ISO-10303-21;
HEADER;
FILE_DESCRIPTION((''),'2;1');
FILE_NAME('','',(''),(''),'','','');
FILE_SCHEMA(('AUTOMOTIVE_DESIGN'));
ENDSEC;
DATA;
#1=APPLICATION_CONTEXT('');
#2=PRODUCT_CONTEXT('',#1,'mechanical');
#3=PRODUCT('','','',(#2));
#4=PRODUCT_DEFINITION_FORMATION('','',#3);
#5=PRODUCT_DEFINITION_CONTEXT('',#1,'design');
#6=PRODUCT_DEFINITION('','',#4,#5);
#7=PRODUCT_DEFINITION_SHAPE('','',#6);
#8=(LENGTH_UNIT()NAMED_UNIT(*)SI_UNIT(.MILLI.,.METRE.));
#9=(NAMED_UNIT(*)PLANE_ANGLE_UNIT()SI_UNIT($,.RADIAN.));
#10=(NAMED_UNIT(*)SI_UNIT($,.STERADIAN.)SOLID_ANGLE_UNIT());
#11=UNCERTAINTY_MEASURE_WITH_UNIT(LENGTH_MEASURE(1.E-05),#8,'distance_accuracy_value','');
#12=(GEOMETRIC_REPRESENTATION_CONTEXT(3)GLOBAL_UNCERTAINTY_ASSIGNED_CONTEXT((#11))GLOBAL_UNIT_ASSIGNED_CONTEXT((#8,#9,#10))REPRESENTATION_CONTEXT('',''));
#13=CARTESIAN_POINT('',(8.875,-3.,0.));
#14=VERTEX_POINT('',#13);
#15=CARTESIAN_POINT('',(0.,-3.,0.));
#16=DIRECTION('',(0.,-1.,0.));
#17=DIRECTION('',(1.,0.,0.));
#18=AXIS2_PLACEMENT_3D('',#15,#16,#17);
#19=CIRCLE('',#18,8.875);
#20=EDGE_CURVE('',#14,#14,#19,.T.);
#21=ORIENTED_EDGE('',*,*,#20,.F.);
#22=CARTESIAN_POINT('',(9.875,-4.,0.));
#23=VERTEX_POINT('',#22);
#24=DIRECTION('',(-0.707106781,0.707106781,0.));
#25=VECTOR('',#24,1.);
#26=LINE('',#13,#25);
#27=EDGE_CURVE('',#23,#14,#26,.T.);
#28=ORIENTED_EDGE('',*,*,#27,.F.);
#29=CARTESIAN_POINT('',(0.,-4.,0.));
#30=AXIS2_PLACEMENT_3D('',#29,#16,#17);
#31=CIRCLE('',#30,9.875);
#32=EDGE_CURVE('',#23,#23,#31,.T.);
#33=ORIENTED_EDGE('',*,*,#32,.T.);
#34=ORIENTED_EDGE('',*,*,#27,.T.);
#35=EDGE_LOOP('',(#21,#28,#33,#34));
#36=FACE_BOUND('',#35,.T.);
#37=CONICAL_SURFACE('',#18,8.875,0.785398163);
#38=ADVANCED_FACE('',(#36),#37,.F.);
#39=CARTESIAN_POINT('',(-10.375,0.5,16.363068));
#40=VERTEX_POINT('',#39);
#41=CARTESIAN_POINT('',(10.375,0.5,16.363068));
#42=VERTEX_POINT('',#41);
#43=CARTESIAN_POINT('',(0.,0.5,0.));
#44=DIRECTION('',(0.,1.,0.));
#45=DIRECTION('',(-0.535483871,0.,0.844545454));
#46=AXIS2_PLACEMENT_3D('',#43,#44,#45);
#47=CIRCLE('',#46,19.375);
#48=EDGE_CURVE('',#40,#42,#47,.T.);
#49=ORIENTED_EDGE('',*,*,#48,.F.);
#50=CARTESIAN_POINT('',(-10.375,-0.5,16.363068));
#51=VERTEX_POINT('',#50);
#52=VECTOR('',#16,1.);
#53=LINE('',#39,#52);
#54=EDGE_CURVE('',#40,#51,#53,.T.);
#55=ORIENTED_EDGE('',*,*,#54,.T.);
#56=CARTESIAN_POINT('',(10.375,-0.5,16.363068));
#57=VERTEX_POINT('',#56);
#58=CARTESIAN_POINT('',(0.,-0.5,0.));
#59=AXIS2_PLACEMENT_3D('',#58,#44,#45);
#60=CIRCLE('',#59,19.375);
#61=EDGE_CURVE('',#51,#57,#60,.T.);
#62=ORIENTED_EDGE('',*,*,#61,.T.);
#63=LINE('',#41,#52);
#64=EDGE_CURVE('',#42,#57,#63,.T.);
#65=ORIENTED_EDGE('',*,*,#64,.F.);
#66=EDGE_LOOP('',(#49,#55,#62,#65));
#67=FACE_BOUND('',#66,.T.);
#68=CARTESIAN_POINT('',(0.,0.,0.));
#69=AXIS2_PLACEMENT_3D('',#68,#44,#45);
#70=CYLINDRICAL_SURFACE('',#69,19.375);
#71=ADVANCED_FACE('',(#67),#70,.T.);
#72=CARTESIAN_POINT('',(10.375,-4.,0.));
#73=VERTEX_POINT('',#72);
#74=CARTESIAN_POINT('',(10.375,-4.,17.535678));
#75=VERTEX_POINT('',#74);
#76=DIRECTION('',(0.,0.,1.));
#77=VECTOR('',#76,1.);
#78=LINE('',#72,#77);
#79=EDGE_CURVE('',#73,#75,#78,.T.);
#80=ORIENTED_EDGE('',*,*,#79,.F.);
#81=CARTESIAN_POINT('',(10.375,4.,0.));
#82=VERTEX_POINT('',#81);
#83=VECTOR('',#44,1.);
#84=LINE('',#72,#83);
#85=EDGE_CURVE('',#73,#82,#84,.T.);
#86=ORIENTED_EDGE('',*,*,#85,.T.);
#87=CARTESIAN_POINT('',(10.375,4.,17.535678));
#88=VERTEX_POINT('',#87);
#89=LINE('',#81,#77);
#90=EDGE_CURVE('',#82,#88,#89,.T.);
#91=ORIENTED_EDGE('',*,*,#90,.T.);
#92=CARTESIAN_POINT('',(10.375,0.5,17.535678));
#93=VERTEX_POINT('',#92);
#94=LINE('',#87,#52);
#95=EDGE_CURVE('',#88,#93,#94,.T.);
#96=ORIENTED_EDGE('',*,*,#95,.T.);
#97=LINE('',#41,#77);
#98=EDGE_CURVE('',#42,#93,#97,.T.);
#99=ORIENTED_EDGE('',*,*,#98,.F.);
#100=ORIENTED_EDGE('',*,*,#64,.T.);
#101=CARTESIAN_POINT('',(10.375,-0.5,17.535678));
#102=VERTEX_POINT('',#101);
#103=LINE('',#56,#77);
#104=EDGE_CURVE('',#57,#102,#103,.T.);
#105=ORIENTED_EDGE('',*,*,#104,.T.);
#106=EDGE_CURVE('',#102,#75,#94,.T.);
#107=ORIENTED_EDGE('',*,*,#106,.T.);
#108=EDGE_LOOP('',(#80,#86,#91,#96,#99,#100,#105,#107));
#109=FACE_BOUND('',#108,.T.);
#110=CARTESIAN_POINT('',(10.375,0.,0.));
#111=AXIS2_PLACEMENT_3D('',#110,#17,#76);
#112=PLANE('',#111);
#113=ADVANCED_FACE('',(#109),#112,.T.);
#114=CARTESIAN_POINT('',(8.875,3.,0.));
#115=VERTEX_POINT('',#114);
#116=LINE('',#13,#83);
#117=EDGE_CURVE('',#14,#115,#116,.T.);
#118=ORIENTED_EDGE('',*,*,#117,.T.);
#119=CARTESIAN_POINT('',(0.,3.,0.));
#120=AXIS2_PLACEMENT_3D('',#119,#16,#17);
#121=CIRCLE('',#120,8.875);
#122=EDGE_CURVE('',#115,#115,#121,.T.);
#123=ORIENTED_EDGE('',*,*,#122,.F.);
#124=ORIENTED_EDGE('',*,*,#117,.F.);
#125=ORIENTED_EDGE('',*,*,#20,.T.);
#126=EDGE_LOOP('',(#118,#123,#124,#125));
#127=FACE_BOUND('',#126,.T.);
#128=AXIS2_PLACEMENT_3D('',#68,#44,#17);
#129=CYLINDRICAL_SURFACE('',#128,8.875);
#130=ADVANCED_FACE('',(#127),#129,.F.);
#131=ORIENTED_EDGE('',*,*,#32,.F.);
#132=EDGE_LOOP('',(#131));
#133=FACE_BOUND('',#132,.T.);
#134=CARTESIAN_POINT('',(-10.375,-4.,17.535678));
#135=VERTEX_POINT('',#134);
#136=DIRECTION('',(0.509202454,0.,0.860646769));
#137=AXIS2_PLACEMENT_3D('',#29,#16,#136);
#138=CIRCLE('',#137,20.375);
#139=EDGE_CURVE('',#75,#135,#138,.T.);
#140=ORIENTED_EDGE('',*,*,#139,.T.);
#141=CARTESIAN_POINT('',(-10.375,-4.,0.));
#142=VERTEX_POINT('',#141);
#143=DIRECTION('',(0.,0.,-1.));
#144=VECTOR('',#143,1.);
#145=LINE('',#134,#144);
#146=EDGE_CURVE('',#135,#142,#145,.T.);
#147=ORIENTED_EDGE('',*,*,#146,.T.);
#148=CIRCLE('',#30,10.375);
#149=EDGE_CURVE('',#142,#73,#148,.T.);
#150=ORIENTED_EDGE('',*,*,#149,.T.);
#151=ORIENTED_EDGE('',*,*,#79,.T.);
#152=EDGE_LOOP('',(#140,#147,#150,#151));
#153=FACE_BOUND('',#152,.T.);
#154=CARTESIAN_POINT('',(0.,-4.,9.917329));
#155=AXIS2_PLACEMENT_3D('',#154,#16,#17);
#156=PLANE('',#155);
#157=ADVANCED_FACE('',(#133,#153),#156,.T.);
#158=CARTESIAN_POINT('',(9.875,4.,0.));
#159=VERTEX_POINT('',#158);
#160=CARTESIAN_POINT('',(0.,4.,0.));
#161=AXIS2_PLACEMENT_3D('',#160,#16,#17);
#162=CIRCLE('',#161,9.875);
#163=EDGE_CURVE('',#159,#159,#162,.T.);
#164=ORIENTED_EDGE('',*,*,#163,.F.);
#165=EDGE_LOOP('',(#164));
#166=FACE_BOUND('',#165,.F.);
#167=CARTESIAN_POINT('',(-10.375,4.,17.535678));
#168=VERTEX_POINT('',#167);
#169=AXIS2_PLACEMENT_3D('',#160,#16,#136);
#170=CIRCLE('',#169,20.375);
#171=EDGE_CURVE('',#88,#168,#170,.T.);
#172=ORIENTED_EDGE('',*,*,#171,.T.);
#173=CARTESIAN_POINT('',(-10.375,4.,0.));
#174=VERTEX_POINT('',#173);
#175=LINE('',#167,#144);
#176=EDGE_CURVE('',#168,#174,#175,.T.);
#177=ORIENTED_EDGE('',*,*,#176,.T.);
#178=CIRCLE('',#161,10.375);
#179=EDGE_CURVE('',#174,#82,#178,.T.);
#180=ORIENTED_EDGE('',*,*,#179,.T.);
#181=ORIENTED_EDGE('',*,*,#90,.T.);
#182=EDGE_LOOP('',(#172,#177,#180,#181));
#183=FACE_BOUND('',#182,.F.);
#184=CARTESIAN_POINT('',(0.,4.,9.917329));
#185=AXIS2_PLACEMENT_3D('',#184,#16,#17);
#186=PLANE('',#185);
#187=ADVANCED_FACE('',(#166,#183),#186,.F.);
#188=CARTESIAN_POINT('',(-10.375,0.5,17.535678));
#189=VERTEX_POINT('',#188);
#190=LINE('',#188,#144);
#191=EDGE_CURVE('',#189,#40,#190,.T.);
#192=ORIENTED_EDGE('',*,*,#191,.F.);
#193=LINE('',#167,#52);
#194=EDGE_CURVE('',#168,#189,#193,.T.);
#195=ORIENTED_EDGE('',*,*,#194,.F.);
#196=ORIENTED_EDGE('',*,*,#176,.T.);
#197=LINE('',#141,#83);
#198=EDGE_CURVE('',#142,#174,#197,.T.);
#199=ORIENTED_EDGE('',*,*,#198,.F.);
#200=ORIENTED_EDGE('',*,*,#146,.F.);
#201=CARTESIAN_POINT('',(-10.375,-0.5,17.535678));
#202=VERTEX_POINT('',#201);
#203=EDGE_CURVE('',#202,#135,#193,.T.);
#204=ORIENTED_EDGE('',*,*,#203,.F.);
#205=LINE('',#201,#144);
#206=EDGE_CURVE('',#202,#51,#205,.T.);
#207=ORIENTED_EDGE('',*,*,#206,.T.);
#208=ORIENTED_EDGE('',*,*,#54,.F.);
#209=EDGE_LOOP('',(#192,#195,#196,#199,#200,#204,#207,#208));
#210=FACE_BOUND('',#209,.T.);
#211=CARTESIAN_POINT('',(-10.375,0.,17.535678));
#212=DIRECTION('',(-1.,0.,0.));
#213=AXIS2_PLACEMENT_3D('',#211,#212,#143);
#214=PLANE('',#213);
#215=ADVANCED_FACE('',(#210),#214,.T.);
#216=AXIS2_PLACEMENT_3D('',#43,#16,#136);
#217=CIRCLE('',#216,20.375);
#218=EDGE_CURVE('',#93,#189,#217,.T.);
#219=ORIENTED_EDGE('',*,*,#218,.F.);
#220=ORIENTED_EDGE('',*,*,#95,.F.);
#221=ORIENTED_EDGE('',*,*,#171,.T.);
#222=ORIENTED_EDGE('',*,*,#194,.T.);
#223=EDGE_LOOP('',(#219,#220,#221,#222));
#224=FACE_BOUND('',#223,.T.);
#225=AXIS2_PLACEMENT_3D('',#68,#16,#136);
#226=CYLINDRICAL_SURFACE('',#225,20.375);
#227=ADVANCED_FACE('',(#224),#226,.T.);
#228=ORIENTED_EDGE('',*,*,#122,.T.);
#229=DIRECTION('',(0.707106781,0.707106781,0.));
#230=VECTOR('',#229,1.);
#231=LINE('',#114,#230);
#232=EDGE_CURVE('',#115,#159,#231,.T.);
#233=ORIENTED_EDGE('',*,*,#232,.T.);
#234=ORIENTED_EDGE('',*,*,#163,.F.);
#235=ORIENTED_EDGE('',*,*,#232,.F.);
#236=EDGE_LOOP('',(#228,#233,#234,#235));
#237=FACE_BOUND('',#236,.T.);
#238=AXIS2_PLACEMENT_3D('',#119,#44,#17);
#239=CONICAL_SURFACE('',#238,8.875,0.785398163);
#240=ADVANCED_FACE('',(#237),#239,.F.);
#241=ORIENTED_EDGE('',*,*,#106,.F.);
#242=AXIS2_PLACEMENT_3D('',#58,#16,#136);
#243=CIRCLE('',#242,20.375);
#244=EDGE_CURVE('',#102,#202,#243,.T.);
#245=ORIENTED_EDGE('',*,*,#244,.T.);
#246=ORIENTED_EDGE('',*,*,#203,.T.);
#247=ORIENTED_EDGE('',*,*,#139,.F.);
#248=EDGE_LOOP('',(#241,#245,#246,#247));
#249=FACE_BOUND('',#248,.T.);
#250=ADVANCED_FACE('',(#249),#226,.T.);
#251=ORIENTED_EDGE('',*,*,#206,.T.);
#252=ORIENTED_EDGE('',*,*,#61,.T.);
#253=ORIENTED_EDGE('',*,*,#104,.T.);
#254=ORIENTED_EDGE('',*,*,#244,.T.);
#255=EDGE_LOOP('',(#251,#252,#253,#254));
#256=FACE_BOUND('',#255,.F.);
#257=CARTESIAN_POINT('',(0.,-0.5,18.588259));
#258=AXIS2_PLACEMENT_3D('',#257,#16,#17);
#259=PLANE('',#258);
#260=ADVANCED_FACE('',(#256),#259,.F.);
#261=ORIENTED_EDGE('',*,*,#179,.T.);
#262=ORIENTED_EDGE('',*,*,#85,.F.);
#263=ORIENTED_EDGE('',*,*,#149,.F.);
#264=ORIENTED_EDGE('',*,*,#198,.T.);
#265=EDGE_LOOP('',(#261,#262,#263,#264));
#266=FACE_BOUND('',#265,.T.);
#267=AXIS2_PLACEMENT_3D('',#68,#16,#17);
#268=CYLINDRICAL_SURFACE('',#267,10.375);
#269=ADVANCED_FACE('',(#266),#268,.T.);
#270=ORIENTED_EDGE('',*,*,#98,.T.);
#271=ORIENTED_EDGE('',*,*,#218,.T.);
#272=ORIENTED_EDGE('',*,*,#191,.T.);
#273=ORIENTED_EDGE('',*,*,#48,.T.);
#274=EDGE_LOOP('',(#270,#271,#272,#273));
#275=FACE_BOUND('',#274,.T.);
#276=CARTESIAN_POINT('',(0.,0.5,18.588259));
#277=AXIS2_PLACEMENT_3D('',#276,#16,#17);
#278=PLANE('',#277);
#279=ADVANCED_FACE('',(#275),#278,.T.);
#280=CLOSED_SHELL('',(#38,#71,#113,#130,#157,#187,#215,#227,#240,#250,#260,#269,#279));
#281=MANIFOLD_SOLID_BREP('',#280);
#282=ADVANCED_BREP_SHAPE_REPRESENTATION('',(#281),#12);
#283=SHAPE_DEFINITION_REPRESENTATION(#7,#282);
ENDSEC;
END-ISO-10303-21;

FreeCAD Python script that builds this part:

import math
import FreeCAD as App
import Part
import Sketcher
Q = App.Units.Quantity


def edges_at(feature, points):
    """Names of the edges that pass closest to the given points."""
    edges = feature.Shape.Edges
    near = lambda p: min(range(len(edges)), key=lambda i: edges[i].distToShape(Part.Vertex(*p))[0])
    return sorted({f"Edge{near(p) + 1}" for p in points})

doc = App.newDocument("Part")
body = doc.addObject("PartDesign::Body", "Body")

sketch1 = body.newObject("Sketcher::SketchObject", "Sketch")
sketch1.AttachmentSupport = (doc.getObject("XZ_Plane"), [""])
sketch1.MapMode = "FlatFace"
sketch1.addGeometry([
    Part.Circle(App.Vector(0, 0, 0), App.Vector(0, 0, 1), 10),
    Part.Circle(App.Vector(0, 0, 0), App.Vector(0, 0, 1), 9),
], False)
sketch1.addConstraint([
    Sketcher.Constraint("Coincident", 0, 3, -1, 1),
    Sketcher.Constraint("Coincident", 1, 3, -1, 1),
    Sketcher.Constraint("Diameter", 0, Q("20.75 mm")),
    Sketcher.Constraint("Diameter", 1, Q("17.75 mm")),
])
pad1 = body.newObject("PartDesign::Pad", "Pad")
pad1.Profile = sketch1
pad1.Type = "TwoLengths"
pad1.Length = 4
pad1.Length2 = 4
doc.recompute()

chamfer = body.newObject("PartDesign::Chamfer", "Chamfer")
chamfer.Base = (pad1, edges_at(pad1, [(-8.875, -4, 0), (-8.875, 4, 0)]))
chamfer.Size = 1

sketch2 = body.newObject("Sketcher::SketchObject", "Sketch001")
sketch2.AttachmentSupport = (doc.getObject("XZ_Plane"), [""])
sketch2.MapMode = "FlatFace"
sketch2.addGeometry([
    Part.ArcOfCircle(Part.Circle(App.Vector(0, 0, 0), App.Vector(0, 0, 1), 10), math.radians(0), math.radians(180)),
    Part.LineSegment(App.Vector(10, 0, 0), App.Vector(10, 18, 0)),
    Part.ArcOfCircle(Part.Circle(App.Vector(0, 0, 0), App.Vector(0, 0, 1), 20), math.radians(59), math.radians(121)),
    Part.LineSegment(App.Vector(-10, 18, 0), App.Vector(-10, 0, 0)),
], False)
sketch2.addConstraint([
    Sketcher.Constraint("Tangent", 0, 1, 1, 1),
    Sketcher.Constraint("Coincident", 1, 2, 2, 1),
    Sketcher.Constraint("Coincident", 2, 2, 3, 1),
    Sketcher.Constraint("Tangent", 3, 2, 0, 2),
    Sketcher.Constraint("Vertical", 1),
    Sketcher.Constraint("Vertical", 3),
    Sketcher.Constraint("Coincident", 0, 3, -1, 1),
    Sketcher.Constraint("Coincident", 2, 3, -1, 1),
    Sketcher.Constraint("Radius", 0, Q("10.375 mm")),
    Sketcher.Constraint("Radius", 2, Q("20.375 mm")),
])
pad2 = body.newObject("PartDesign::Pad", "Pad001")
pad2.Profile = sketch2
pad2.Type = "TwoLengths"
pad2.Length = 4
pad2.Length2 = 4

sketch3 = body.newObject("Sketcher::SketchObject", "Sketch002")
sketch3.AttachmentSupport = (doc.getObject("XZ_Plane"), [""])
sketch3.MapMode = "FlatFace"
sketch3.addGeometry([
    Part.ArcOfCircle(Part.Circle(App.Vector(0, 0, 0), App.Vector(0, 0, 1), 19.4), math.radians(58), math.radians(122)),
    Part.LineSegment(App.Vector(10.4, 16.4, 0), App.Vector(10.4, 17.5, 0)),
    Part.ArcOfCircle(Part.Circle(App.Vector(0, 0, 0), App.Vector(0, 0, 1), 20.4), math.radians(59), math.radians(121)),
    Part.LineSegment(App.Vector(-10.4, 17.5, 0), App.Vector(-10.4, 16.4, 0)),
], False)
sketch3.addConstraint([
    Sketcher.Constraint("Coincident", 0, 1, 1, 1),
    Sketcher.Constraint("Coincident", 1, 2, 2, 1),
    Sketcher.Constraint("Coincident", 2, 2, 3, 1),
    Sketcher.Constraint("Coincident", 3, 2, 0, 2),
    Sketcher.Constraint("Vertical", 1),
    Sketcher.Constraint("Vertical", 3),
    Sketcher.Constraint("Coincident", 0, 3, -1, 1),
    Sketcher.Constraint("Coincident", 2, 3, -1, 1),
    Sketcher.Constraint("Horizontal", 1, 2, 2, 2),
    Sketcher.Constraint("Radius", 0, Q("19.375 mm")),
    Sketcher.Constraint("Radius", 2, Q("20.375 mm")),
    Sketcher.Constraint("DistanceX", 2, 2, 1, 2, Q("20.75 mm")),
])
pocket1 = body.newObject("PartDesign::Pocket", "Pocket")
pocket1.Profile = sketch3
pocket1.Type = "TwoLengths"
pocket1.Length = 0.5
pocket1.Length2 = 0.5

doc.recompute()
